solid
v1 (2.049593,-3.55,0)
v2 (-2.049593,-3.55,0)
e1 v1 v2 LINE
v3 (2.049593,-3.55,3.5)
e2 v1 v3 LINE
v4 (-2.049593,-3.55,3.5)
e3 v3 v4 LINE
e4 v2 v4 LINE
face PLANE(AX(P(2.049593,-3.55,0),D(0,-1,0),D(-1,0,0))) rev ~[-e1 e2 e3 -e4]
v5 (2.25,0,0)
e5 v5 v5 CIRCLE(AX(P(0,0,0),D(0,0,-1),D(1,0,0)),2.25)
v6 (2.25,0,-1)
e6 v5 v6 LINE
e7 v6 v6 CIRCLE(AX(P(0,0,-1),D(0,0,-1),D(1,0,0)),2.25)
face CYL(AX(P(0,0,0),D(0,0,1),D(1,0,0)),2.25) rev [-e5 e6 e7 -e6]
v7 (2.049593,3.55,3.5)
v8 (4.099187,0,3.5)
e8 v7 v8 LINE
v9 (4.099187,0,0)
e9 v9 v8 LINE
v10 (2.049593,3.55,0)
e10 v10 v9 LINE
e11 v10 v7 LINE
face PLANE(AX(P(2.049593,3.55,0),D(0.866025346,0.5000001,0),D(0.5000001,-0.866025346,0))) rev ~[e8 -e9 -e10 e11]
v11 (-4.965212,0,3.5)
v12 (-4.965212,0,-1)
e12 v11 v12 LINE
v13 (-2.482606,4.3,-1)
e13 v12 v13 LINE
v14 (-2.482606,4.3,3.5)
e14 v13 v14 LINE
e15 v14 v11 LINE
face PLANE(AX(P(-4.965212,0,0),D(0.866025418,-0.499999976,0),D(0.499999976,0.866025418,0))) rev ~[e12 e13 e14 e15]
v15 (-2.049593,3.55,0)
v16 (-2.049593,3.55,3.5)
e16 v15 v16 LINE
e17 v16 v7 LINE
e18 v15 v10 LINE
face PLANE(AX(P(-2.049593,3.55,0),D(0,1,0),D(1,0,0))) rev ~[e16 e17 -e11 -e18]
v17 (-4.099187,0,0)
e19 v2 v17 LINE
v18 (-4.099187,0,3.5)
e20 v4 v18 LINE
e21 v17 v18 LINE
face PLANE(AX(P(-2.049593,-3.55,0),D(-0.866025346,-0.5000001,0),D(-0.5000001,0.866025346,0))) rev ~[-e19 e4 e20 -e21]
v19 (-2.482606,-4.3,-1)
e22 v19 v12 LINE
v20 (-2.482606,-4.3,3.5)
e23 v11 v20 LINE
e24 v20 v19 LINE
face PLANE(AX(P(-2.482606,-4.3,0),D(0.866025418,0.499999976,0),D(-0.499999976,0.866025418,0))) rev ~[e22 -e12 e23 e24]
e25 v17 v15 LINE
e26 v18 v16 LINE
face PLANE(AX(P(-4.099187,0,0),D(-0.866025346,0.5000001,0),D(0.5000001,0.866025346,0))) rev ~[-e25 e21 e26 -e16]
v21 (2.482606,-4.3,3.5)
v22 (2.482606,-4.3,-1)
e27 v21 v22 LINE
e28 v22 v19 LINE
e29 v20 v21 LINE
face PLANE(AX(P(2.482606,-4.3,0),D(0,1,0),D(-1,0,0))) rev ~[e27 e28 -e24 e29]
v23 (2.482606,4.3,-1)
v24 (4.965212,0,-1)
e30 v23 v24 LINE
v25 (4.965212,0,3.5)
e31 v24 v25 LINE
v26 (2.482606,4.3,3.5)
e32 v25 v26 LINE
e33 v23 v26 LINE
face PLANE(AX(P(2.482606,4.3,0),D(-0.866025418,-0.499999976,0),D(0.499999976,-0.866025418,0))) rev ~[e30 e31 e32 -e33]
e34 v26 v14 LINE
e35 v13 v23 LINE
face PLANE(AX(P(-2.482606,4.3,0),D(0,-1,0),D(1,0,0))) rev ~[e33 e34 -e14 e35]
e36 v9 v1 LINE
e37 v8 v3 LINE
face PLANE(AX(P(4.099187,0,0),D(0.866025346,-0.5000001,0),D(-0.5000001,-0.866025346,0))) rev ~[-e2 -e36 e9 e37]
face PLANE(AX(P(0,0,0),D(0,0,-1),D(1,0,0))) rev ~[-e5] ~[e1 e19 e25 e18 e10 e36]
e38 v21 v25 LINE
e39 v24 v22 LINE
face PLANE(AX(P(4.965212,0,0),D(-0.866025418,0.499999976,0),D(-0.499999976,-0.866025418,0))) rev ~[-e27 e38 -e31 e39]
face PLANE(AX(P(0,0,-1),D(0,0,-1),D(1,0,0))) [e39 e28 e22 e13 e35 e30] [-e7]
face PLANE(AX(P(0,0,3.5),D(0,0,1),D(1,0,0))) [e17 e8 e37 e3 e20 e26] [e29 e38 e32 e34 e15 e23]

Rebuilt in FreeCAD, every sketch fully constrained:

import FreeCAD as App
import Part
import Sketcher

V = App.Vector
Q = App.Units.Quantity


def add_polygon(sketch, points):
    """Adds a closed chain of lines whose ends are joined by coincident constraints."""
    first, n = sketch.GeometryCount, len(points)
    for a, b in zip(points, points[1:] + points[:1]):
        sketch.addGeometry(Part.LineSegment(App.Vector(*a, 0), App.Vector(*b, 0)), False)
    for i in range(n):
        sketch.addConstraint(Sketcher.Constraint("Coincident", first + i, 2, first + (i + 1) % n, 1))

doc = App.newDocument("Part")
body = doc.addObject("PartDesign::Body", "Body")

# Sketch on XY plane
sketch1 = doc.addObject("Sketcher::SketchObject", "Sketch")
body.addObject(sketch1)
sketch1.AttachmentSupport = (doc.XY_Plane, [""])
sketch1.MapMode = "FlatFace"
add_polygon(sketch1, [(-2.5, -4.3), (2.5, -4.3), (5, 0), (2.5, 4.3), (-2.5, 4.3), (-5, 0)])  # lines 0-5
add_polygon(sketch1, [(2, 3.5), (4.1, 0), (2, -3.5), (-2, -3.5), (-4.1, 0), (-2, 3.5)])  # lines 6-11
sketch1.addConstraint([
    Sketcher.Constraint("Horizontal", 0),
    Sketcher.Constraint("Horizontal", 3),
    Sketcher.Constraint("Horizontal", 8),
    Sketcher.Constraint("Horizontal", 11),
    Sketcher.Constraint("Symmetric", 0, 2, 3, 2, -1, 1),
    Sketcher.Constraint("Symmetric", 1, 2, 4, 2, -1, 1),
    Sketcher.Constraint("Symmetric", 6, 2, 9, 2, -1, 1),
    Sketcher.Constraint("Symmetric", 7, 2, 10, 2, -1, 1),
    Sketcher.Constraint("PointOnObject", 1, 2, -1),
    Sketcher.Constraint("PointOnObject", 6, 2, -1),
    Sketcher.Constraint("Parallel", 2, 5),
    Sketcher.Constraint("Parallel", 5, 6),
    Sketcher.Constraint("Parallel", 4, 7),
    Sketcher.Constraint("Parallel", 6, 9),
    Sketcher.Constraint("Vertical", 0, 2, 2, 2),
    Sketcher.Constraint("Angle", 1, Q("60.000002 deg")),
    Sketcher.Constraint("DistanceY", 0, 2, -1, 1, Q("4.3 mm")),
    Sketcher.Constraint("DistanceY", 7, 2, -1, 1, Q("3.55 mm")),
    Sketcher.Constraint("DistanceX", 5, 2, 7, 2, Q("4.532199 mm")),
    Sketcher.Constraint("DistanceX", 0, 1, 0, 2, Q("4.965212 mm")),
])
pad1 = doc.addObject("PartDesign::Pad", "Pad")
body.addObject(pad1)
pad1.Profile = sketch1
pad1.Length = 3.5

# Sketch on XY plane
sketch2 = doc.addObject("Sketcher::SketchObject", "Sketch001")
body.addObject(sketch2)
sketch2.AttachmentSupport = (doc.XY_Plane, [""])
sketch2.MapMode = "FlatFace"
add_polygon(sketch2, [(5, 0), (2.5, -4.3), (-2.5, -4.3), (-5, 0), (-2.5, 4.3), (2.5, 4.3)])  # lines 0-5
sketch2.addGeometry(Part.Circle(V(0, 0, 0), V(0, 0, 1), 2.2), False)  # 6
sketch2.addConstraint([
    Sketcher.Constraint("Horizontal", 1),
    Sketcher.Constraint("Horizontal", 4),
    Sketcher.Constraint("Coincident", 6, 3, -1, 1),
    Sketcher.Constraint("Symmetric", 0, 2, 3, 2, -1, 1),
    Sketcher.Constraint("Symmetric", 2, 2, 5, 2, -1, 1),
    Sketcher.Constraint("PointOnObject", 2, 2, -1),
    Sketcher.Constraint("Parallel", 2, 5),
    Sketcher.Constraint("Vertical", 1, 2, 3, 2),
    Sketcher.Constraint("Diameter", 6, Q("4.5 mm")),
    Sketcher.Constraint("Angle", 0, Q("-119.999998 deg")),
    Sketcher.Constraint("DistanceY", 0, 2, -1, 1, Q("4.3 mm")),
    Sketcher.Constraint("DistanceX", 1, 2, 1, 1, Q("4.965212 mm")),
])
pad2 = doc.addObject("PartDesign::Pad", "Pad001")
body.addObject(pad2)
pad2.Profile = sketch2
pad2.Length = 1
pad2.Reversed = True

doc.recompute()
